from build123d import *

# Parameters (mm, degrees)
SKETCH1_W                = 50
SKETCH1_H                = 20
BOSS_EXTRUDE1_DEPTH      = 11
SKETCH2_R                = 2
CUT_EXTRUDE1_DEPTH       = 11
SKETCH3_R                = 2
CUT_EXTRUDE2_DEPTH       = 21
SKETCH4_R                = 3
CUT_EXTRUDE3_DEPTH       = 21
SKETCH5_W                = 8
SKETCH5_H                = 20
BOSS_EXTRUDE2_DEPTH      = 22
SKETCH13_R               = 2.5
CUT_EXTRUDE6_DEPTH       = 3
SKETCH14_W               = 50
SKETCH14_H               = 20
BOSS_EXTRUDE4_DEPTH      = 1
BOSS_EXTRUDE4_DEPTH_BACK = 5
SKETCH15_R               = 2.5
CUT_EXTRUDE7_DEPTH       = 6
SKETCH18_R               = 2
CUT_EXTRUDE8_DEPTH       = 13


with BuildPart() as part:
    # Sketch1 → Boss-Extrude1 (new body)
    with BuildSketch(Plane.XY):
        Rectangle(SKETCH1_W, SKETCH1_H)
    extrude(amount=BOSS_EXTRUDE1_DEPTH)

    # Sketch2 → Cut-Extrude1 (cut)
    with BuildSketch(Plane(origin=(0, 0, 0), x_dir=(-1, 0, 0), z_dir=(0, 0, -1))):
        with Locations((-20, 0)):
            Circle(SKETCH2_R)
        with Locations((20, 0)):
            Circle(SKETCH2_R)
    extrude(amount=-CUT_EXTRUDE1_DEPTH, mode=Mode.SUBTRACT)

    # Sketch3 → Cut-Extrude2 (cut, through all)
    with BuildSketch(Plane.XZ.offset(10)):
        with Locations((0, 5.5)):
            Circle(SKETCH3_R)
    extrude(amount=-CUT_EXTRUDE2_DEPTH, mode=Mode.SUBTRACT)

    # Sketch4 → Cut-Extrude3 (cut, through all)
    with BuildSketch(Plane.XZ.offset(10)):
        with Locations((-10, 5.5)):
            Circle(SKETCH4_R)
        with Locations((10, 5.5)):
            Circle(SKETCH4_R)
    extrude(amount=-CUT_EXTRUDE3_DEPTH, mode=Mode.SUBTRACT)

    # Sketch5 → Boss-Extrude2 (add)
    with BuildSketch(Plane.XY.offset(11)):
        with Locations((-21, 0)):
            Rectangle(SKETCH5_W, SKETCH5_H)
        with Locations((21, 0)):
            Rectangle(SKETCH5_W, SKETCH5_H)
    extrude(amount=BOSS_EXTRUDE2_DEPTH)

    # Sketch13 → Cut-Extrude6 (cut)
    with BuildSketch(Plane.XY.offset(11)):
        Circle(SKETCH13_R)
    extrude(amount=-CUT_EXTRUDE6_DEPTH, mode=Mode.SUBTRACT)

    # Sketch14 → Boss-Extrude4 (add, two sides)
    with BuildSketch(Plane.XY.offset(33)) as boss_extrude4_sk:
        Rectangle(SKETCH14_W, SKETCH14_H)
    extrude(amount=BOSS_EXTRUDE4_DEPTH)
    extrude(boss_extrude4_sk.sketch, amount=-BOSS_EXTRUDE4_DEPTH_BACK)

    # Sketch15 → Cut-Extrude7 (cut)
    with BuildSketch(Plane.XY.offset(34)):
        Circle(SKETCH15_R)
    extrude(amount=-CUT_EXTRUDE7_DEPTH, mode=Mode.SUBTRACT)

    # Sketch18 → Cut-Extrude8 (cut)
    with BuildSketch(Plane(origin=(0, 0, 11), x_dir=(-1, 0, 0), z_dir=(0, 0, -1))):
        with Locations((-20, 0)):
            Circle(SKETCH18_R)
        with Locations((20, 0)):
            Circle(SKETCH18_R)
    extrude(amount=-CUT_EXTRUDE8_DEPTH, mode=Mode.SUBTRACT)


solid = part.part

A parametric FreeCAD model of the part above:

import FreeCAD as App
import Part
import Sketcher

V = App.Vector


def add_polygon(sketch, points):
    """Adds a closed chain of lines whose ends are joined by coincident constraints."""
    first, n = sketch.GeometryCount, len(points)
    for a, b in zip(points, points[1:] + points[:1]):
        sketch.addGeometry(Part.LineSegment(App.Vector(*a, 0), App.Vector(*b, 0)), False)
    for i in range(n):
        sketch.addConstraint(Sketcher.Constraint("Coincident", first + i, 2, first + (i + 1) % n, 1))

doc = App.newDocument("Part")
params = doc.addObject("Spreadsheet::Sheet", "Params")
for row, (alias, value) in enumerate([
    ("sketch1_width", "50 mm"),
    ("sketch1_height", "20 mm"),
    ("pad1_length", "11 mm"),
    ("sketch2_diameter", "4 mm"),
    ("pocket1_length", "11 mm"),
    ("sketch3_diameter", "4 mm"),
    ("sketch4_diameter", "6 mm"),
    ("sketch5_width", "8 mm"),
    ("sketch5_height", "20 mm"),
    ("pad2_length", "22 mm"),
    ("sketch6_diameter", "5 mm"),
    ("pocket4_length", "3 mm"),
    ("sketch7_width", "50 mm"),
    ("sketch7_height", "20 mm"),
    ("pad3_length", "1 mm"),
    ("pad3_length2", "5 mm"),
    ("sketch8_diameter", "5 mm"),
    ("pocket5_length", "6 mm"),
    ("sketch9_diameter", "4 mm"),
    ("pocket6_length", "13 mm"),
], start=1):
    params.set(f"A{row}", alias)
    params.set(f"B{row}", "=" + value)
    params.setAlias(f"B{row}", alias)

body = doc.addObject("PartDesign::Body", "Body")

# Sketch on XY plane
sketch1 = doc.addObject("Sketcher::SketchObject", "Sketch")
body.addObject(sketch1)
sketch1.AttachmentSupport = (doc.XY_Plane, [""])
sketch1.MapMode = "FlatFace"
add_polygon(sketch1, [(-25, 10), (-25, -10), (25, -10), (25, 10)])  # lines 0-3
sketch1.addConstraint(Sketcher.Constraint("Vertical", 0))
sketch1.addConstraint(Sketcher.Constraint("Horizontal", 1))
sketch1.addConstraint(Sketcher.Constraint("Vertical", 2))
sketch1.addConstraint(Sketcher.Constraint("Horizontal", 3))
sketch1.addConstraint(Sketcher.Constraint("Symmetric", 0, 2, 2, 2, -1, 1))
sketch1.addConstraint(Sketcher.Constraint("DistanceX", 1, 1, 1, 2, 50.0))
sketch1.addConstraint(Sketcher.Constraint("DistanceY", 0, 2, 0, 1, 20.0))
sketch1.setExpression("Constraints[9]", "Params.sketch1_width")
sketch1.setExpression("Constraints[10]", "Params.sketch1_height")
pad1 = doc.addObject("PartDesign::Pad", "Pad")
body.addObject(pad1)
pad1.Profile = sketch1
pad1.setExpression("Length", "Params.pad1_length")

# Sketch on XY plane
sketch2 = doc.addObject("Sketcher::SketchObject", "Sketch001")
body.addObject(sketch2)
sketch2.AttachmentSupport = (doc.XY_Plane, [""])
sketch2.MapMode = "FlatFace"
sketch2.addGeometry(Part.Circle(V(20, 0, 0), V(0, 0, 1), 2), False)
sketch2.addGeometry(Part.Circle(V(-20, 0, 0), V(0, 0, 1), 2), False)
sketch2.addConstraint(Sketcher.Constraint("Equal", 0, 1))
sketch2.addConstraint(Sketcher.Constraint("Symmetric", 0, 3, 1, 3, -1, 1))
sketch2.addConstraint(Sketcher.Constraint("PointOnObject", 0, 3, -1))
sketch2.addConstraint(Sketcher.Constraint("Diameter", 0, 4.0))
sketch2.addConstraint(Sketcher.Constraint("DistanceX", -1, 1, 0, 3, 20.0))
sketch2.setExpression("Constraints[3]", "Params.sketch2_diameter")
pocket1 = doc.addObject("PartDesign::Pocket", "Pocket")
body.addObject(pocket1)
pocket1.Profile = sketch2
pocket1.setExpression("Length", "Params.pocket1_length")
pocket1.Reversed = True

# Sketch on XZ plane
sketch3 = doc.addObject("Sketcher::SketchObject", "Sketch002")
body.addObject(sketch3)
sketch3.AttachmentSupport = (doc.XZ_Plane, [""])
sketch3.MapMode = "FlatFace"
sketch3.AttachmentOffset = App.Placement(V(0, 0, 10), App.Rotation())
sketch3.addGeometry(Part.Circle(V(0, 5.5, 0), V(0, 0, 1), 2), False)
sketch3.addConstraint(Sketcher.Constraint("PointOnObject", 0, 3, -2))
sketch3.addConstraint(Sketcher.Constraint("Diameter", 0, 4.0))
sketch3.addConstraint(Sketcher.Constraint("DistanceY", -1, 1, 0, 3, 5.5))
sketch3.setExpression("Constraints[1]", "Params.sketch3_diameter")
pocket2 = doc.addObject("PartDesign::Pocket", "Pocket001")
body.addObject(pocket2)
pocket2.Profile = sketch3
pocket2.Type = "ThroughAll"

# Sketch on XZ plane
sketch4 = doc.addObject("Sketcher::SketchObject", "Sketch003")
body.addObject(sketch4)
sketch4.AttachmentSupport = (doc.XZ_Plane, [""])
sketch4.MapMode = "FlatFace"
sketch4.AttachmentOffset = App.Placement(V(0, 0, 10), App.Rotation())
sketch4.addGeometry(Part.Circle(V(-10, 5.5, 0), V(0, 0, 1), 3), False)
sketch4.addGeometry(Part.Circle(V(10, 5.5, 0), V(0, 0, 1), 3), False)
sketch4.addConstraint(Sketcher.Constraint("Equal", 0, 1))
sketch4.addConstraint(Sketcher.Constraint("Symmetric", 0, 3, 1, 3, -2))
sketch4.addConstraint(Sketcher.Constraint("Diameter", 0, 6.0))
sketch4.addConstraint(Sketcher.Constraint("DistanceX", 0, 3, -1, 1, 10.0))
sketch4.addConstraint(Sketcher.Constraint("DistanceY", -1, 1, 0, 3, 5.5))
sketch4.setExpression("Constraints[2]", "Params.sketch4_diameter")
pocket3 = doc.addObject("PartDesign::Pocket", "Pocket002")
body.addObject(pocket3)
pocket3.Profile = sketch4
pocket3.Type = "ThroughAll"

# Sketch on XY plane
sketch5 = doc.addObject("Sketcher::SketchObject", "Sketch004")
body.addObject(sketch5)
sketch5.AttachmentSupport = (doc.XY_Plane, [""])
sketch5.MapMode = "FlatFace"
sketch5.AttachmentOffset = App.Placement(V(0, 0, 11), App.Rotation())
add_polygon(sketch5, [(-25, 10), (-25, -10), (-17, -10), (-17, 10)])  # lines 0-3
add_polygon(sketch5, [(17, 10), (17, -10), (25, -10), (25, 10)])  # lines 4-7
sketch5.addConstraint(Sketcher.Constraint("Vertical", 0))
sketch5.addConstraint(Sketcher.Constraint("Horizontal", 1))
sketch5.addConstraint(Sketcher.Constraint("Vertical", 2))
sketch5.addConstraint(Sketcher.Constraint("Horizontal", 3))
sketch5.addConstraint(Sketcher.Constraint("Vertical", 4))
sketch5.addConstraint(Sketcher.Constraint("Horizontal", 5))
sketch5.addConstraint(Sketcher.Constraint("Vertical", 6))
sketch5.addConstraint(Sketcher.Constraint("Horizontal", 7))
sketch5.addConstraint(Sketcher.Constraint("Symmetric", 2, 2, 4, 2, -1, 1))
sketch5.addConstraint(Sketcher.Constraint("Symmetric", 0, 2, 6, 2, -1, 1))
sketch5.addConstraint(Sketcher.Constraint("Horizontal", 1, 2, 4, 2))
sketch5.addConstraint(Sketcher.Constraint("DistanceX", 1, 1, 1, 2, 8.0))
sketch5.addConstraint(Sketcher.Constraint("DistanceY", 0, 2, 0, 1, 20.0))
sketch5.addConstraint(Sketcher.Constraint("DistanceX", 0, 2, -1, 1, 25.0))
sketch5.setExpression("Constraints[19]", "Params.sketch5_width")
sketch5.setExpression("Constraints[20]", "Params.sketch5_height")
pad2 = doc.addObject("PartDesign::Pad", "Pad001")
body.addObject(pad2)
pad2.Profile = sketch5
pad2.setExpression("Length", "Params.pad2_length")

# Sketch on XY plane
sketch6 = doc.addObject("Sketcher::SketchObject", "Sketch005")
body.addObject(sketch6)
sketch6.AttachmentSupport = (doc.XY_Plane, [""])
sketch6.MapMode = "FlatFace"
sketch6.AttachmentOffset = App.Placement(V(0, 0, 11), App.Rotation())
sketch6.addGeometry(Part.Circle(V(0, 0, 0), V(0, 0, 1), 2.5), False)
sketch6.addConstraint(Sketcher.Constraint("Coincident", 0, 3, -1, 1))
sketch6.addConstraint(Sketcher.Constraint("Diameter", 0, 5.0))
sketch6.setExpression("Constraints[1]", "Params.sketch6_diameter")
pocket4 = doc.addObject("PartDesign::Pocket", "Pocket003")
body.addObject(pocket4)
pocket4.Profile = sketch6
pocket4.setExpression("Length", "Params.pocket4_length")

# Sketch on XY plane
sketch7 = doc.addObject("Sketcher::SketchObject", "Sketch006")
body.addObject(sketch7)
sketch7.AttachmentSupport = (doc.XY_Plane, [""])
sketch7.MapMode = "FlatFace"
sketch7.AttachmentOffset = App.Placement(V(0, 0, 33), App.Rotation())
add_polygon(sketch7, [(-25, 10), (-25, -10), (25, -10), (25, 10)])  # lines 0-3
sketch7.addConstraint(Sketcher.Constraint("Vertical", 0))
sketch7.addConstraint(Sketcher.Constraint("Horizontal", 1))
sketch7.addConstraint(Sketcher.Constraint("Vertical", 2))
sketch7.addConstraint(Sketcher.Constraint("Horizontal", 3))
sketch7.addConstraint(Sketcher.Constraint("Symmetric", 0, 2, 2, 2, -1, 1))
sketch7.addConstraint(Sketcher.Constraint("DistanceX", 1, 1, 1, 2, 50.0))
sketch7.addConstraint(Sketcher.Constraint("DistanceY", 0, 2, 0, 1, 20.0))
sketch7.setExpression("Constraints[9]", "Params.sketch7_width")
sketch7.setExpression("Constraints[10]", "Params.sketch7_height")
pad3 = doc.addObject("PartDesign::Pad", "Pad002")
body.addObject(pad3)
pad3.Profile = sketch7
pad3.Type = "TwoLengths"
pad3.setExpression("Length", "Params.pad3_length")
pad3.setExpression("Length2", "Params.pad3_length2")

# Sketch on XY plane
sketch8 = doc.addObject("Sketcher::SketchObject", "Sketch007")
body.addObject(sketch8)
sketch8.AttachmentSupport = (doc.XY_Plane, [""])
sketch8.MapMode = "FlatFace"
sketch8.AttachmentOffset = App.Placement(V(0, 0, 34), App.Rotation())
sketch8.addGeometry(Part.Circle(V(0, 0, 0), V(0, 0, 1), 2.5), False)
sketch8.addConstraint(Sketcher.Constraint("Coincident", 0, 3, -1, 1))
sketch8.addConstraint(Sketcher.Constraint("Diameter", 0, 5.0))
sketch8.setExpression("Constraints[1]", "Params.sketch8_diameter")
pocket5 = doc.addObject("PartDesign::Pocket", "Pocket004")
body.addObject(pocket5)
pocket5.Profile = sketch8
pocket5.setExpression("Length", "Params.pocket5_length")

# Sketch on XY plane
sketch9 = doc.addObject("Sketcher::SketchObject", "Sketch008")
body.addObject(sketch9)
sketch9.AttachmentSupport = (doc.XY_Plane, [""])
sketch9.MapMode = "FlatFace"
sketch9.AttachmentOffset = App.Placement(V(0, 0, 11), App.Rotation())
sketch9.addGeometry(Part.Circle(V(20, 0, 0), V(0, 0, 1), 2), False)
sketch9.addGeometry(Part.Circle(V(-20, 0, 0), V(0, 0, 1), 2), False)
sketch9.addConstraint(Sketcher.Constraint("Equal", 0, 1))
sketch9.addConstraint(Sketcher.Constraint("Symmetric", 0, 3, 1, 3, -1, 1))
sketch9.addConstraint(Sketcher.Constraint("PointOnObject", 0, 3, -1))
sketch9.addConstraint(Sketcher.Constraint("Diameter", 0, 4.0))
sketch9.addConstraint(Sketcher.Constraint("DistanceX", -1, 1, 0, 3, 20.0))
sketch9.setExpression("Constraints[3]", "Params.sketch9_diameter")
pocket6 = doc.addObject("PartDesign::Pocket", "Pocket005")
body.addObject(pocket6)
pocket6.Profile = sketch9
pocket6.setExpression("Length", "Params.pocket6_length")
pocket6.Reversed = True

doc.recompute()
